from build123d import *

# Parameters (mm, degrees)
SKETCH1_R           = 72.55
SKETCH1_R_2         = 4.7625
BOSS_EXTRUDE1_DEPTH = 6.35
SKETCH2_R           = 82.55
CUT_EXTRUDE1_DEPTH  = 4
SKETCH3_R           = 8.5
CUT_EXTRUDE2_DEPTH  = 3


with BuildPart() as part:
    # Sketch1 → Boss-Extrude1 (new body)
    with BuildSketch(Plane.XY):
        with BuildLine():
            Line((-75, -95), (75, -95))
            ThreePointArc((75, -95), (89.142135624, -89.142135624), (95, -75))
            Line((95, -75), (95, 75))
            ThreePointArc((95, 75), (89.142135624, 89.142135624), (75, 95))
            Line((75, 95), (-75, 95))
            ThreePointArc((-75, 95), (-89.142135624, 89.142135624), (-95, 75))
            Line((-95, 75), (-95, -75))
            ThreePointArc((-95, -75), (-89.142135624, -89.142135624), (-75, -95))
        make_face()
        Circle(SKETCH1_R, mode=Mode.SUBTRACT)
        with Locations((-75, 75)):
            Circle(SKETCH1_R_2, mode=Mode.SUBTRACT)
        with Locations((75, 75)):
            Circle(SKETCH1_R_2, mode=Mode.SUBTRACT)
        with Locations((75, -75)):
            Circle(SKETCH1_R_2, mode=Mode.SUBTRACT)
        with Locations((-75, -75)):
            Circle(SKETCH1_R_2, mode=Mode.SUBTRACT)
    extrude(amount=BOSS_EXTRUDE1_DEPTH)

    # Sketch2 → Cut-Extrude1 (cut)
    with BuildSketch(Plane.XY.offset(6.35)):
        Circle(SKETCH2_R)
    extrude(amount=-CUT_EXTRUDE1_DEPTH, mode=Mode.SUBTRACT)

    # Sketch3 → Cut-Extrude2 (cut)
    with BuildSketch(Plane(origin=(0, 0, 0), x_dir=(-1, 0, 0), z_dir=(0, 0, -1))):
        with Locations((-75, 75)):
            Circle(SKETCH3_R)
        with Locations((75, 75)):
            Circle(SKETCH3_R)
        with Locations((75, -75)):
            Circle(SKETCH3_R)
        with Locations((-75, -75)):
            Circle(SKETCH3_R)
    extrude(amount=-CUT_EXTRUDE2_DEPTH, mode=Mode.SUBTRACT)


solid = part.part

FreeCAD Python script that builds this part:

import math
import FreeCAD as App
import Part
import Sketcher
Q = App.Units.Quantity

doc = App.newDocument("Part")
params = doc.addObject("Spreadsheet::Sheet", "Params")
for row, (alias, value) in enumerate([
    ("sketch1_radius", "20 mm"),
    ("sketch1_diameter", "145.1 mm"),
    ("sketch1_width", "150 mm"),
    ("pad1_length", "6.35 mm"),
    ("sketch2_diameter", "165.1 mm"),
    ("pocket1_length", "4 mm"),
    ("sketch3_diameter", "17 mm"),
    ("pocket2_length", "3 mm"),
], start=1):
    params.set(f"A{row}", alias)
    params.set(f"B{row}", "=" + value)
    params.setAlias(f"B{row}", alias)

body = doc.addObject("PartDesign::Body", "Body")

# Sketch on XY plane
sketch1 = doc.addObject("Sketcher::SketchObject", "Sketch")
body.addObject(sketch1)
sketch1.AttachmentSupport = (doc.XY_Plane, [""])
sketch1.MapMode = "FlatFace"
sketch1.addGeometry([
    Part.LineSegment(App.Vector(-75, -95, 0), App.Vector(75, -95, 0)),  # 0
    Part.ArcOfCircle(Part.Circle(App.Vector(75, -75, 0), App.Vector(0, 0, 1), 20), math.radians(-90), math.radians(0)),  # 1
    Part.LineSegment(App.Vector(95, -75, 0), App.Vector(95, 75, 0)),  # 2
    Part.ArcOfCircle(Part.Circle(App.Vector(75, 75, 0), App.Vector(0, 0, 1), 20), math.radians(0), math.radians(90)),  # 3
    Part.LineSegment(App.Vector(75, 95, 0), App.Vector(-75, 95, 0)),  # 4
    Part.ArcOfCircle(Part.Circle(App.Vector(-75, 75, 0), App.Vector(0, 0, 1), 20), math.radians(90), math.radians(180)),  # 5
    Part.LineSegment(App.Vector(-95, 75, 0), App.Vector(-95, -75, 0)),  # 6
    Part.ArcOfCircle(Part.Circle(App.Vector(-75, -75, 0), App.Vector(0, 0, 1), 20), math.radians(180), math.radians(270)),  # 7
    Part.Circle(App.Vector(-75, -75, 0), App.Vector(0, 0, 1), 4.7625),  # 8
    Part.Circle(App.Vector(75, -75, 0), App.Vector(0, 0, 1), 4.7625),  # 9
    Part.Circle(App.Vector(-75, 75, 0), App.Vector(0, 0, 1), 4.7625),  # 10
    Part.Circle(App.Vector(0, 0, 0), App.Vector(0, 0, 1), 72.55),  # 11
    Part.Circle(App.Vector(75, 75, 0), App.Vector(0, 0, 1), 4.7625),  # 12
], False)
sketch1.addConstraint([
    Sketcher.Constraint("Tangent", 0, 2, 1, 1),
    Sketcher.Constraint("Tangent", 1, 2, 2, 1),
    Sketcher.Constraint("Tangent", 2, 2, 3, 1),
    Sketcher.Constraint("Tangent", 3, 2, 4, 1),
    Sketcher.Constraint("Tangent", 4, 2, 5, 1),
    Sketcher.Constraint("Tangent", 5, 2, 6, 1),
    Sketcher.Constraint("Tangent", 6, 2, 7, 1),
    Sketcher.Constraint("Tangent", 7, 2, 0, 1),
    Sketcher.Constraint("Horizontal", 0),
    Sketcher.Constraint("Vertical", 2),
    Sketcher.Constraint("Horizontal", 4),
    Sketcher.Constraint("Vertical", 6),
    Sketcher.Constraint("Coincident", 11, 3, -1, 1),
    Sketcher.Constraint("Coincident", 8, 3, 7, 3),
    Sketcher.Constraint("Coincident", 9, 3, 1, 3),
    Sketcher.Constraint("Coincident", 10, 3, 5, 3),
    Sketcher.Constraint("Coincident", 12, 3, 3, 3),
    Sketcher.Constraint("Equal", 1, 3),
    Sketcher.Constraint("Equal", 3, 5),
    Sketcher.Constraint("Equal", 5, 7),
    Sketcher.Constraint("Equal", 8, 9),
    Sketcher.Constraint("Equal", 9, 10),
    Sketcher.Constraint("Equal", 10, 12),
    Sketcher.Constraint("Symmetric", 1, 3, 5, 3, -1, 1),
    Sketcher.Constraint("Equal", 4, 2),
    Sketcher.Constraint("Radius", 1, Q("20 mm")),
    Sketcher.Constraint("Diameter", 11, Q("145.1 mm")),
    Sketcher.Constraint("DistanceX", 0, 1, 0, 2, Q("150 mm")),
    Sketcher.Constraint("Diameter", 8, Q("9.525 mm")),
])
sketch1.setExpression("Constraints[25]", "Params.sketch1_radius")
sketch1.setExpression("Constraints[26]", "Params.sketch1_diameter")
sketch1.setExpression("Constraints[27]", "Params.sketch1_width")
pad1 = doc.addObject("PartDesign::Pad", "Pad")
body.addObject(pad1)
pad1.Profile = sketch1
pad1.setExpression("Length", "Params.pad1_length")

# Sketch on XY plane
sketch2 = doc.addObject("Sketcher::SketchObject", "Sketch001")
body.addObject(sketch2)
sketch2.AttachmentSupport = (doc.XY_Plane, [""])
sketch2.MapMode = "FlatFace"
sketch2.AttachmentOffset = App.Placement(App.Vector(0, 0, 6.35), App.Rotation())
sketch2.addGeometry(Part.Circle(App.Vector(0, 0, 0), App.Vector(0, 0, 1), 82.55), False)
sketch2.addConstraint([
    Sketcher.Constraint("Coincident", 0, 3, -1, 1),
    Sketcher.Constraint("Diameter", 0, Q("165.1 mm")),
])
sketch2.setExpression("Constraints[1]", "Params.sketch2_diameter")
pocket1 = doc.addObject("PartDesign::Pocket", "Pocket")
body.addObject(pocket1)
pocket1.Profile = sketch2
pocket1.setExpression("Length", "Params.pocket1_length")

# Sketch on XY plane
sketch3 = doc.addObject("Sketcher::SketchObject", "Sketch002")
body.addObject(sketch3)
sketch3.AttachmentSupport = (doc.XY_Plane, [""])
sketch3.MapMode = "FlatFace"
sketch3.addGeometry([
    Part.Circle(App.Vector(75, 75, 0), App.Vector(0, 0, 1), 8.5),
    Part.Circle(App.Vector(-75, 75, 0), App.Vector(0, 0, 1), 8.5),
    Part.Circle(App.Vector(-75, -75, 0), App.Vector(0, 0, 1), 8.5),
    Part.Circle(App.Vector(75, -75, 0), App.Vector(0, 0, 1), 8.5),
], False)
sketch3.addConstraint([
    Sketcher.Constraint("Equal", 0, 1),
    Sketcher.Constraint("Equal", 1, 2),
    Sketcher.Constraint("Equal", 2, 3),
    Sketcher.Constraint("Symmetric", 0, 3, 2, 3, -1, 1),
    Sketcher.Constraint("Symmetric", 1, 3, 3, 3, -1, 1),
    Sketcher.Constraint("Symmetric", 0, 3, 1, 3, -2),
    Sketcher.Constraint("Diameter", 0, Q("17 mm")),
    Sketcher.Constraint("DistanceX", -1, 1, 0, 3, Q("75 mm")),
    Sketcher.Constraint("DistanceY", -1, 1, 0, 3, Q("75 mm")),
])
sketch3.setExpression("Constraints[6]", "Params.sketch3_diameter")
pocket2 = doc.addObject("PartDesign::Pocket", "Pocket001")
body.addObject(pocket2)
pocket2.Profile = sketch3
pocket2.setExpression("Length", "Params.pocket2_length")
pocket2.Reversed = True

doc.recompute()
